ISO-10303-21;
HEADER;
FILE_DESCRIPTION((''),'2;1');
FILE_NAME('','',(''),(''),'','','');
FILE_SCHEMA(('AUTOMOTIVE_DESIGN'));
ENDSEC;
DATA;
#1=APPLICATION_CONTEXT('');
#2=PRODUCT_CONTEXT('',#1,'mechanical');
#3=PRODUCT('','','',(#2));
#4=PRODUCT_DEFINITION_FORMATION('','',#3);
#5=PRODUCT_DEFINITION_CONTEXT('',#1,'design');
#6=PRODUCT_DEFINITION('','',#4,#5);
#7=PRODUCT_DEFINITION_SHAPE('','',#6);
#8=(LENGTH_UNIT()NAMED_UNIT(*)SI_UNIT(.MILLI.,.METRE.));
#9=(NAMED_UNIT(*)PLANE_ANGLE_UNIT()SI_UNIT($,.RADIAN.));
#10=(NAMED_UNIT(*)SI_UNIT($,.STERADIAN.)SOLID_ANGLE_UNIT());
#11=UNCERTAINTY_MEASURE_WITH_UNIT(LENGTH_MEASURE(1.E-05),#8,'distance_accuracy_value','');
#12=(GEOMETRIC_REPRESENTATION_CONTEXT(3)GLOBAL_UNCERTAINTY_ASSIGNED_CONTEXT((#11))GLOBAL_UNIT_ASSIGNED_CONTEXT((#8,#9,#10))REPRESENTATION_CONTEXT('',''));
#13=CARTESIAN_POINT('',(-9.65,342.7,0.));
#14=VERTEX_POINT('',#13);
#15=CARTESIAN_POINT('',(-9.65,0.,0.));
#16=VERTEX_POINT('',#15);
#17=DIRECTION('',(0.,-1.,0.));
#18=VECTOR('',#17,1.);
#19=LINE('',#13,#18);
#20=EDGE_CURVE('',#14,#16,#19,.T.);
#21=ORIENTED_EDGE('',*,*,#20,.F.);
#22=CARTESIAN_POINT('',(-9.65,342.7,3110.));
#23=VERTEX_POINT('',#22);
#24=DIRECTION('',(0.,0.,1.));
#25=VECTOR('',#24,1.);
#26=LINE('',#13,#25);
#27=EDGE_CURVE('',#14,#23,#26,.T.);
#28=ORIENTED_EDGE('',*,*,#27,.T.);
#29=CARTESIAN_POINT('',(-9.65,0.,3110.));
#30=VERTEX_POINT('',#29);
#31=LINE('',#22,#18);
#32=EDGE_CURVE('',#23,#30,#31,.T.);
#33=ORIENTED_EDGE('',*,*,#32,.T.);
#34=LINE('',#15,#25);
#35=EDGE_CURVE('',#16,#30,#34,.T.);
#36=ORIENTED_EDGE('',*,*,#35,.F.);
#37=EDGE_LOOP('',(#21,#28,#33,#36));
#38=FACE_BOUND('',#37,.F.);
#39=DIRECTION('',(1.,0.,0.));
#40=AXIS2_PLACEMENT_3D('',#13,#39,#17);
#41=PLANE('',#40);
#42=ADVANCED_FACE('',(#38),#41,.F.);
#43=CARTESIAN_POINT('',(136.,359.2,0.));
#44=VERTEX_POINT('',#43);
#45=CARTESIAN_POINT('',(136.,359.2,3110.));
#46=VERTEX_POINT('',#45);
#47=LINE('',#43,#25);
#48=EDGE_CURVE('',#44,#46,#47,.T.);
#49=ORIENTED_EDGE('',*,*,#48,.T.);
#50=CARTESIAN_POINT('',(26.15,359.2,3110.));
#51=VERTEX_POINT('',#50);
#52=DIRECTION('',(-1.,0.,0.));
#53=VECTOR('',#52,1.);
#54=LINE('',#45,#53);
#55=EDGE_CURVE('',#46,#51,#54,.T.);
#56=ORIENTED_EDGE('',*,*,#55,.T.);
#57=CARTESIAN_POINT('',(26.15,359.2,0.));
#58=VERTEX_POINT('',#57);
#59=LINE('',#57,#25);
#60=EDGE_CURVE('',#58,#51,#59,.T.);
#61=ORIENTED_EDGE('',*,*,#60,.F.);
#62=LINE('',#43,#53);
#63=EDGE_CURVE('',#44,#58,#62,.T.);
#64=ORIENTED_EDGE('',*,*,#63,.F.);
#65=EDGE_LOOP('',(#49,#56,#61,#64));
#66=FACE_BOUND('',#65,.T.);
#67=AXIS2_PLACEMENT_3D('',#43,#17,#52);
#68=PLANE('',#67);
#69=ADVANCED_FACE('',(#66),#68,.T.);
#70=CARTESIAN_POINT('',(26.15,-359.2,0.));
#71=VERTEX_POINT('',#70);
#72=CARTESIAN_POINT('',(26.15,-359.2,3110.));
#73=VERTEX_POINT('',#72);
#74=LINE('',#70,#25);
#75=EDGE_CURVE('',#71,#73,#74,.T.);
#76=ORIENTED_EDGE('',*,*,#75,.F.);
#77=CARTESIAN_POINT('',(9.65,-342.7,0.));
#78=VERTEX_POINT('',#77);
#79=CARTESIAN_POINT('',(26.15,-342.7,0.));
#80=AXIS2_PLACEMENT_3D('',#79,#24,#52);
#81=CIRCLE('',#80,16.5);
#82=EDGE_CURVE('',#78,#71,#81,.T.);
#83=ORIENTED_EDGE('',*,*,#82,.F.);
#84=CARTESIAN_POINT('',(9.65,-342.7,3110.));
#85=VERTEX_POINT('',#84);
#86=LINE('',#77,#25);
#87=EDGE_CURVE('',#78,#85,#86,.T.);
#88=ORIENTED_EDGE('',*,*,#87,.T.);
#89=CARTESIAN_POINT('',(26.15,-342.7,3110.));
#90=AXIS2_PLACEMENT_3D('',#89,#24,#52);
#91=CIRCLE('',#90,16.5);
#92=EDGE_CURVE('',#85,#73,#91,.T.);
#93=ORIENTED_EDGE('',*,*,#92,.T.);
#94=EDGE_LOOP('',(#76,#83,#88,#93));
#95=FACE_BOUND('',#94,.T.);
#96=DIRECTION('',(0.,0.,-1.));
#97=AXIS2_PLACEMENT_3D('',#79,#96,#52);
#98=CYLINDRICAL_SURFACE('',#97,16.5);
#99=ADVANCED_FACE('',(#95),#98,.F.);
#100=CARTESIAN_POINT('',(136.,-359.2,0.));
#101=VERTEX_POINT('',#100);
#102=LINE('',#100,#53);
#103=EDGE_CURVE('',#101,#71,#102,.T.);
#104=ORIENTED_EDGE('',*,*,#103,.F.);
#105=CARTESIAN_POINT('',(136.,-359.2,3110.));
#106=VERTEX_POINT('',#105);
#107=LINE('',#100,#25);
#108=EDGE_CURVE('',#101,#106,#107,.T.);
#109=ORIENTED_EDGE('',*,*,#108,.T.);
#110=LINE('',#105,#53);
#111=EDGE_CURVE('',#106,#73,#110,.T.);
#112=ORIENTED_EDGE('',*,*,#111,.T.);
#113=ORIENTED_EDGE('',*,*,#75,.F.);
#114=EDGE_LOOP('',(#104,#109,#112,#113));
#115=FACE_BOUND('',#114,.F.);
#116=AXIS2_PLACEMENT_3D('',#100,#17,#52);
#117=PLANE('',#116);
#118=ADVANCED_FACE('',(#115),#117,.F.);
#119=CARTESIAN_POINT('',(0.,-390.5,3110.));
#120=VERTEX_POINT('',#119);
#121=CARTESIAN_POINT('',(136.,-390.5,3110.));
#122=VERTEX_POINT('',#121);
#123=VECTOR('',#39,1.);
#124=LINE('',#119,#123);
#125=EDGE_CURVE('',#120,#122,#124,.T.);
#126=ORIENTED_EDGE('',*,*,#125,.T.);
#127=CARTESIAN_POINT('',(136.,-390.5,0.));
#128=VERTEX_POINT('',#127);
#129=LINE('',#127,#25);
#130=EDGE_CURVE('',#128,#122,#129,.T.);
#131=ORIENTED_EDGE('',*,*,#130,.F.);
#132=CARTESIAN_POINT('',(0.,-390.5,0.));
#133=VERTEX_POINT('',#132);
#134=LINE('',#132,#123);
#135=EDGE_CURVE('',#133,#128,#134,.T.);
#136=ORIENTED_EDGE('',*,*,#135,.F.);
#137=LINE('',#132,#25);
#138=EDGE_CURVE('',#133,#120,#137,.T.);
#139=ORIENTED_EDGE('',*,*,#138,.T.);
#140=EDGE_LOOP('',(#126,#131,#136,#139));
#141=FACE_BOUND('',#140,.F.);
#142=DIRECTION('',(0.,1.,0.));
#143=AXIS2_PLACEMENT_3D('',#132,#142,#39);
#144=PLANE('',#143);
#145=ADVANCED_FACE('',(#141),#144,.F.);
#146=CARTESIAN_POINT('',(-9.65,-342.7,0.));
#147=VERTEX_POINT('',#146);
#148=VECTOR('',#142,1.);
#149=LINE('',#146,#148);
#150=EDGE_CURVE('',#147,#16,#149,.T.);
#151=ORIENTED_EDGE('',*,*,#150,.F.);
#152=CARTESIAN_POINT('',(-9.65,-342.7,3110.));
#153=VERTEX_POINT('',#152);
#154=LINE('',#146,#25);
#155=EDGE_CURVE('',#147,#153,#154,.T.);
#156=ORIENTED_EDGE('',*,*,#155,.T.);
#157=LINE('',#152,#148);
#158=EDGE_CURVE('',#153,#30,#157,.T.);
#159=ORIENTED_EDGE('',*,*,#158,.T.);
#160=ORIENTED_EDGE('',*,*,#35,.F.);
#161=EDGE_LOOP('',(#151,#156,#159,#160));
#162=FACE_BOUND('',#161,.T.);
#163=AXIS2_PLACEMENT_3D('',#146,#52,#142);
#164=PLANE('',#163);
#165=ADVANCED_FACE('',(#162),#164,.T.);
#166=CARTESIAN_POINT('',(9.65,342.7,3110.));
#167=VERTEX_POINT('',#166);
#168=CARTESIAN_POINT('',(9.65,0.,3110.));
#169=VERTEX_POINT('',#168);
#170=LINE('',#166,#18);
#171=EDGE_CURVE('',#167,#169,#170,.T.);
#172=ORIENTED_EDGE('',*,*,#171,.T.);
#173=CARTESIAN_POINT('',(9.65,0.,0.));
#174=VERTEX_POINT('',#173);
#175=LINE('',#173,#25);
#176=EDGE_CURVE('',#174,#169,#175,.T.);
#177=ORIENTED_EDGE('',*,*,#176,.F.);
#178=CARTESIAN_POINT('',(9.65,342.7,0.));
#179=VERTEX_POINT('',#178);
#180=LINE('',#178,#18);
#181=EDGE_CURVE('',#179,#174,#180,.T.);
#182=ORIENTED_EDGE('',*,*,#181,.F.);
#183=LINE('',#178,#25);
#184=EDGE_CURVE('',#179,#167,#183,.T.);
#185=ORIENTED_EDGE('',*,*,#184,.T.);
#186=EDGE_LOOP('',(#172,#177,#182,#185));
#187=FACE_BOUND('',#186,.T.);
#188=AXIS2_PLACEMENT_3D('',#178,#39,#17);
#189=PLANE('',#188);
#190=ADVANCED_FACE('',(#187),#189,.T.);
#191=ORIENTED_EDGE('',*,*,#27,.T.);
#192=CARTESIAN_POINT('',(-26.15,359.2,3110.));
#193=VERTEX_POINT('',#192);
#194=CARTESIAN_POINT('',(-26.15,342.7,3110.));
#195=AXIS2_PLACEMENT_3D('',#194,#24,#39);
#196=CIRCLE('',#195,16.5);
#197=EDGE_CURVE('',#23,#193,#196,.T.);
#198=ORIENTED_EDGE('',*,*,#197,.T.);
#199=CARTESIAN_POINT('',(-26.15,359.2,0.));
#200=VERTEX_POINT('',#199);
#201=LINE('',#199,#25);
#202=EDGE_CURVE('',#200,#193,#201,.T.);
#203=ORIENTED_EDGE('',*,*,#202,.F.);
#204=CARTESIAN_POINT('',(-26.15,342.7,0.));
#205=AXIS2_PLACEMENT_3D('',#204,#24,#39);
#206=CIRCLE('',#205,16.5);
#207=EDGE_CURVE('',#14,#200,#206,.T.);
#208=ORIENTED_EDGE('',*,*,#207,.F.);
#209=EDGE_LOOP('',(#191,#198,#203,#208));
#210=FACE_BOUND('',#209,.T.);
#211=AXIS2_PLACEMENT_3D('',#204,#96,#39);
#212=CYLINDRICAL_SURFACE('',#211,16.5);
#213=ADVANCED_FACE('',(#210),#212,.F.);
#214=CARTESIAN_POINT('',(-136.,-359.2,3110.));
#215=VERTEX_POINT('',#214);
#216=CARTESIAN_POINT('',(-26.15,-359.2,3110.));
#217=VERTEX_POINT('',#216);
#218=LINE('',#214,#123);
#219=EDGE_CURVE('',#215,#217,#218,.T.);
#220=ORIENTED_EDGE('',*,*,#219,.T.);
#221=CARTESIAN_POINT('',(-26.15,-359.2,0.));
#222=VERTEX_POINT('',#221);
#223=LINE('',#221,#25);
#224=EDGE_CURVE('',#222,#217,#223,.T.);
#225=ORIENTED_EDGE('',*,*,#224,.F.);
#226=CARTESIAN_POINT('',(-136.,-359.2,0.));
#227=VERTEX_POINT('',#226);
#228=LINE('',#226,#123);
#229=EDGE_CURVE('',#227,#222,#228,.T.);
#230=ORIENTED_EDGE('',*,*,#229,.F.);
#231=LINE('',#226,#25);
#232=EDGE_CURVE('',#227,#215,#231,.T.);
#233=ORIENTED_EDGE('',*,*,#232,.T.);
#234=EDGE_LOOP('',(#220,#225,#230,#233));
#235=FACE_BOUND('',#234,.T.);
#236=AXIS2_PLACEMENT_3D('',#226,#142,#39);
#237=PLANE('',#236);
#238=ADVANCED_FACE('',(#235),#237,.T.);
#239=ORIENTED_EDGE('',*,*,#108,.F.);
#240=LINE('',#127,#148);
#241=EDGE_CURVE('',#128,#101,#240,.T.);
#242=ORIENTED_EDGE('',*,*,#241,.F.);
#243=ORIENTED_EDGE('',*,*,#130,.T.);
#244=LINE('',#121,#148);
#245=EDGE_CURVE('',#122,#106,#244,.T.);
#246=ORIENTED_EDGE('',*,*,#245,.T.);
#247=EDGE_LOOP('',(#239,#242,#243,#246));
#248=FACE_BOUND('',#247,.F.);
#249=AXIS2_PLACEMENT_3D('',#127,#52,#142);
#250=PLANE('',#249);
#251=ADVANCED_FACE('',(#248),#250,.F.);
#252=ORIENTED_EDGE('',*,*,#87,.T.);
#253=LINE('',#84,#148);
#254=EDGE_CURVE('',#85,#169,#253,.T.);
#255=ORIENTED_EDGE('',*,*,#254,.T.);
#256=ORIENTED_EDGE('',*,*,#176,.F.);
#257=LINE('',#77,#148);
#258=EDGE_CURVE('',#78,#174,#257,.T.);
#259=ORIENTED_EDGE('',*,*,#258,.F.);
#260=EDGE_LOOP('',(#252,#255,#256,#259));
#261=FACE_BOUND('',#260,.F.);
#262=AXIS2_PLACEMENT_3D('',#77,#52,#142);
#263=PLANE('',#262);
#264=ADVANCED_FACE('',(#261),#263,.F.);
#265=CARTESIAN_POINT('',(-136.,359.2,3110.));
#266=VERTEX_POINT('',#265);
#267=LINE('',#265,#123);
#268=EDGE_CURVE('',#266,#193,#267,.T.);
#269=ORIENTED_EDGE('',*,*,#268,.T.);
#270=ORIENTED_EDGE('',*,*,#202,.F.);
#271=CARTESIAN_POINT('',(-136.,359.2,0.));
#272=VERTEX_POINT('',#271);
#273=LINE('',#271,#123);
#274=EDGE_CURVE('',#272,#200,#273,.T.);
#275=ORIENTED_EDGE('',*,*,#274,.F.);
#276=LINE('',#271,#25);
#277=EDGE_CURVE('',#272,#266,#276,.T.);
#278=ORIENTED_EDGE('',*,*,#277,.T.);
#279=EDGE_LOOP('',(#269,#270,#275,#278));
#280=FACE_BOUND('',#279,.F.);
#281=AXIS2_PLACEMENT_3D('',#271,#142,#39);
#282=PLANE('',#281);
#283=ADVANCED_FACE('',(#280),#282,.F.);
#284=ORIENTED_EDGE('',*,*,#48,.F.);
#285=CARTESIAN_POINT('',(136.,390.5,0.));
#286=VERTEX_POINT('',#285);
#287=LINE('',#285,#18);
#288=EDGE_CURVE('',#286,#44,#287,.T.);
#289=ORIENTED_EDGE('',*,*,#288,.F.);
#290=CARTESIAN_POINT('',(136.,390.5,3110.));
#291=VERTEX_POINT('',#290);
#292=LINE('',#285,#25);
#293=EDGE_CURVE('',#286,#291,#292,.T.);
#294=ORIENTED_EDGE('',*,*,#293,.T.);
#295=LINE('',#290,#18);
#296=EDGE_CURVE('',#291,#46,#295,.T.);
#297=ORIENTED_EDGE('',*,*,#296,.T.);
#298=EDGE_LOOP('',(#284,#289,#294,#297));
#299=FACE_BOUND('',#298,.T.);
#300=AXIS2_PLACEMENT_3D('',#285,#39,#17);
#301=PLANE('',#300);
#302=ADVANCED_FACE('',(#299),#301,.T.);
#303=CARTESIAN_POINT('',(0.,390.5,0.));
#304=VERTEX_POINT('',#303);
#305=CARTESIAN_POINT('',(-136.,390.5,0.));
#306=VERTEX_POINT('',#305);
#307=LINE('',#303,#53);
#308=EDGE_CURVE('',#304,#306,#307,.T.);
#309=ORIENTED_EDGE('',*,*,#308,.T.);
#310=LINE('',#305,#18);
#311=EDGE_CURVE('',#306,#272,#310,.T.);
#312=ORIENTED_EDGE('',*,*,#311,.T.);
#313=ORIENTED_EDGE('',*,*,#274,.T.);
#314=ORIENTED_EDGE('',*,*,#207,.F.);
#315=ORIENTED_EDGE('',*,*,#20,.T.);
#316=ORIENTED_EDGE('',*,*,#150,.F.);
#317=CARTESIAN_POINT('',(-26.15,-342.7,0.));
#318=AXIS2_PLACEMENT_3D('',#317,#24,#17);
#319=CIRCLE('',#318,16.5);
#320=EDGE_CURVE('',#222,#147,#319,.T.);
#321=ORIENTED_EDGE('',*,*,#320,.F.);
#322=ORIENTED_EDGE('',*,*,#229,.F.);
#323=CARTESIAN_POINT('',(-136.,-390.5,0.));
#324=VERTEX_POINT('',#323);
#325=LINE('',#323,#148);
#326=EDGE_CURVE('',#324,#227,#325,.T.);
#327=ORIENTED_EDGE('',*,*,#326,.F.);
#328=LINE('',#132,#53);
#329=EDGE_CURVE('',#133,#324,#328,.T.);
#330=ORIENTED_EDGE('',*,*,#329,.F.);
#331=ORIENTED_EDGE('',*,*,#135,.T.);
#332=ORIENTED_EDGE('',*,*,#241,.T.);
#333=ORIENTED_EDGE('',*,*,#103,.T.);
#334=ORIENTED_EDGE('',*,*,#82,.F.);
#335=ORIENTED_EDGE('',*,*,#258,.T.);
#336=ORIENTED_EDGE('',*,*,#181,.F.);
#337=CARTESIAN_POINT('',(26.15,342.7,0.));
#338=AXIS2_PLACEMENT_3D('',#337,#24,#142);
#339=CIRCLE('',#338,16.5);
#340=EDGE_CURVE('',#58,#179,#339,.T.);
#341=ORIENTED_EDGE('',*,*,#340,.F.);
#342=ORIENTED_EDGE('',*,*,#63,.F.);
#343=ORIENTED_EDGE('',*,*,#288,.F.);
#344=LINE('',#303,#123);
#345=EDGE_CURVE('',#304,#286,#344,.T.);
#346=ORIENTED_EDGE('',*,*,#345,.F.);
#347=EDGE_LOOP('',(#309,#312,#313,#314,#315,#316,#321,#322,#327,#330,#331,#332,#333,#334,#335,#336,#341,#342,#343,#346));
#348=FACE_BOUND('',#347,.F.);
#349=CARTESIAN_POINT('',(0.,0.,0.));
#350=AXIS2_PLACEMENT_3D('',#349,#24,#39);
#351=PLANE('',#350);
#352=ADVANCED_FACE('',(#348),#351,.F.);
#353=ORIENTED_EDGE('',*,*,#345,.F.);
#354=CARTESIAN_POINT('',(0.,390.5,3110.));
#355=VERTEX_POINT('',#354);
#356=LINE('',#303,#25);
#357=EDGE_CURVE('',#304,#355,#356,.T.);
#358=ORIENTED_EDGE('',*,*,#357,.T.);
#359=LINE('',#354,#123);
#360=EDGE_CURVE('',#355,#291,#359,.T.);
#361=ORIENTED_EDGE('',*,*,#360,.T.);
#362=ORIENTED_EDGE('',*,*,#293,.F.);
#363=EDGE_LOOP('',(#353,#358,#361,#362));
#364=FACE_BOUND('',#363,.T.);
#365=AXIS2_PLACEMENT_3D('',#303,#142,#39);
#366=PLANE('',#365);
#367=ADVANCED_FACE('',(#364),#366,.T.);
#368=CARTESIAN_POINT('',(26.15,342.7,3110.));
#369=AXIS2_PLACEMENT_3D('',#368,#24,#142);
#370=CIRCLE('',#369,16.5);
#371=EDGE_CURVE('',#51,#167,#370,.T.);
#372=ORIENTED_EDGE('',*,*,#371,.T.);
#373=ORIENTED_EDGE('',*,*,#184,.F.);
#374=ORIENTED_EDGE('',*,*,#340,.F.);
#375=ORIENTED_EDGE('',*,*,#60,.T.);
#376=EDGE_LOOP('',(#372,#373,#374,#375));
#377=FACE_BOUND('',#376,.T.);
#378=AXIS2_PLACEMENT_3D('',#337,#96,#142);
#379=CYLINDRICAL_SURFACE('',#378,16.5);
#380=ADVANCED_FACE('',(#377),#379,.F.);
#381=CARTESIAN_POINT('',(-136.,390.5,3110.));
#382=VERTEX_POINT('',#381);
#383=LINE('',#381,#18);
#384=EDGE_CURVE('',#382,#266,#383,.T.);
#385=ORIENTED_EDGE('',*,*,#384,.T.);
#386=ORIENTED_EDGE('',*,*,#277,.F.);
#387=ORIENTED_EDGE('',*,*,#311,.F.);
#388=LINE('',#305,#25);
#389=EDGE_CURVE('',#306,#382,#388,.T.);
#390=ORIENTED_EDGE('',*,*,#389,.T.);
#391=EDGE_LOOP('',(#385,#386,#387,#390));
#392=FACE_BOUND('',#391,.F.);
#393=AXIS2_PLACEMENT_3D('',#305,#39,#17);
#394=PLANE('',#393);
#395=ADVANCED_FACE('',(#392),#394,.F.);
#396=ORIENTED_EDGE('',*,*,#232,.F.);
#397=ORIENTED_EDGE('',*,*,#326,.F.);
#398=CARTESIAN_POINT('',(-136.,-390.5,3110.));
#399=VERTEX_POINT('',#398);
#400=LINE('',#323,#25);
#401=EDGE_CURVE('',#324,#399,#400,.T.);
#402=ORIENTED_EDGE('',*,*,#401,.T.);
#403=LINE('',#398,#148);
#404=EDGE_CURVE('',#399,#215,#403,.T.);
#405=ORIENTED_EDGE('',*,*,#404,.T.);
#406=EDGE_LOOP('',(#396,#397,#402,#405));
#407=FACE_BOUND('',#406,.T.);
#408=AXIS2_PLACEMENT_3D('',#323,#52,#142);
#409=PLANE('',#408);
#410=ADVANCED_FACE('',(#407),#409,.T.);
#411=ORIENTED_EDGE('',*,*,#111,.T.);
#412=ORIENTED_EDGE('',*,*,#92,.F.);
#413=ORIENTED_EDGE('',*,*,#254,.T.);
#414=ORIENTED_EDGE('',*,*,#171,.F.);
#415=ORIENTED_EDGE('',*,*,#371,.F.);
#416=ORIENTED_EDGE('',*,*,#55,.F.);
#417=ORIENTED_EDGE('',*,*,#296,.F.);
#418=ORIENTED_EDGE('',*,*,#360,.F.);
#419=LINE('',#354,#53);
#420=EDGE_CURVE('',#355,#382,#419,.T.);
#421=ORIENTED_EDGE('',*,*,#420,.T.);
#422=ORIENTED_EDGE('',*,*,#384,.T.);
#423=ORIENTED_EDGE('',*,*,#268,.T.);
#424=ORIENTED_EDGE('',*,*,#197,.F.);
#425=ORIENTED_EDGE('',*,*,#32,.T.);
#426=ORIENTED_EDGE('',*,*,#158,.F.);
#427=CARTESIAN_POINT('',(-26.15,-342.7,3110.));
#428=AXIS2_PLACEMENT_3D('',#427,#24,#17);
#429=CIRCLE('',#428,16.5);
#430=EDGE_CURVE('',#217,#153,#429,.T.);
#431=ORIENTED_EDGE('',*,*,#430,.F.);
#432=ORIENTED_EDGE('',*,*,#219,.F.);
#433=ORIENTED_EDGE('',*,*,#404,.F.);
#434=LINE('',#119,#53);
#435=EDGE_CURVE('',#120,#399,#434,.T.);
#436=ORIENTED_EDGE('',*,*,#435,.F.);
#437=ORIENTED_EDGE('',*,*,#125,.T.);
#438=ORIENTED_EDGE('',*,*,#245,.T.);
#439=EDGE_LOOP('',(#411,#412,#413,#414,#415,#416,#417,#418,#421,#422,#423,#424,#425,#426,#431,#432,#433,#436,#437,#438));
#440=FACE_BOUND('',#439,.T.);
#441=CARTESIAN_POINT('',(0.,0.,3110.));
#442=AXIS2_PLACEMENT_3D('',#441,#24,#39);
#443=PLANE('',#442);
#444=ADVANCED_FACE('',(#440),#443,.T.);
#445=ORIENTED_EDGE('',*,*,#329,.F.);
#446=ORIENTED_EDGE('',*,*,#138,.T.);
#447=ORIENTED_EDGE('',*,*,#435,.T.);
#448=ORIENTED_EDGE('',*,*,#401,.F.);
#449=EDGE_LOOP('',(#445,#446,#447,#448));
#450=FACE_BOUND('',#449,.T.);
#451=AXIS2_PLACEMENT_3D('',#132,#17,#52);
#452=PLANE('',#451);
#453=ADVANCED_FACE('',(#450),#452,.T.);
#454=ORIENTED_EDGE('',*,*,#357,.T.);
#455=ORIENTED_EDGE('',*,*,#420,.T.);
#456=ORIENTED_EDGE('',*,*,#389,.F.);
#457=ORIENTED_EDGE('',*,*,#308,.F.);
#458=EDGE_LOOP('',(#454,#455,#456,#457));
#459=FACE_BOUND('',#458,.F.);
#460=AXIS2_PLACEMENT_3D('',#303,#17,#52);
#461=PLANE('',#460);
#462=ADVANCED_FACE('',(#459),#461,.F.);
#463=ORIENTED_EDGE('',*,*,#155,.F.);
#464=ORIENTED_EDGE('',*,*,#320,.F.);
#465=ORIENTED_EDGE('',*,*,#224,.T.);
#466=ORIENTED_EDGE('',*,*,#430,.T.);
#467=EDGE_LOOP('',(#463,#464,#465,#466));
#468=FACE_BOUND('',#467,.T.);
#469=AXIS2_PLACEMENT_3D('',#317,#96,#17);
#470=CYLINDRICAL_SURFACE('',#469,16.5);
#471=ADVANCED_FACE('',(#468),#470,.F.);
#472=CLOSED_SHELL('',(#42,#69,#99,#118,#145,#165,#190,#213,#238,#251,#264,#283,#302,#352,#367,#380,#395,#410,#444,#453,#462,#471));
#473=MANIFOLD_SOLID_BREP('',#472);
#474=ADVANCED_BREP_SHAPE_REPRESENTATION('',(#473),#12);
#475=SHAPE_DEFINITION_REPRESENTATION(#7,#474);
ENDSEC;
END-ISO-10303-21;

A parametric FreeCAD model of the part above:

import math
import FreeCAD as App
import Part
import Sketcher

V = App.Vector
Q = App.Units.Quantity

doc = App.newDocument("Part")
body = doc.addObject("PartDesign::Body", "Body")

# Sketch on XY plane
sketch1 = doc.addObject("Sketcher::SketchObject", "Sketch")
body.addObject(sketch1)
sketch1.AttachmentSupport = (doc.XY_Plane, [""])
sketch1.MapMode = "FlatFace"
sketch1.addGeometry(Part.LineSegment(V(-136, -359.2, 0), V(-136, -390.5, 0)), False)
sketch1.addGeometry(Part.LineSegment(V(-136, -390.5, 0), V(136, -390.5, 0)), False)
sketch1.addGeometry(Part.LineSegment(V(136, -390.5, 0), V(136, -359.2, 0)), False)
sketch1.addGeometry(Part.LineSegment(V(136, -359.2, 0), V(26.15, -359.2, 0)), False)
sketch1.addGeometry(Part.ArcOfCircle(Part.Circle(V(26.15, -342.7, 0), V(0, 0, 1), 16.5), math.radians(180), math.radians(270)), False)
sketch1.addGeometry(Part.LineSegment(V(9.65, -342.7, 0), V(9.65, 342.7, 0)), False)
sketch1.addGeometry(Part.ArcOfCircle(Part.Circle(V(26.15, 342.7, 0), V(0, 0, 1), 16.5), math.radians(90), math.radians(180)), False)
sketch1.addGeometry(Part.LineSegment(V(26.15, 359.2, 0), V(136, 359.2, 0)), False)
sketch1.addGeometry(Part.LineSegment(V(136, 359.2, 0), V(136, 390.5, 0)), False)
sketch1.addGeometry(Part.LineSegment(V(136, 390.5, 0), V(-136, 390.5, 0)), False)
sketch1.addGeometry(Part.LineSegment(V(-136, 390.5, 0), V(-136, 359.2, 0)), False)
sketch1.addGeometry(Part.LineSegment(V(-136, 359.2, 0), V(-26.15, 359.2, 0)), False)
sketch1.addGeometry(Part.ArcOfCircle(Part.Circle(V(-26.15, 342.7, 0), V(0, 0, 1), 16.5), math.radians(0), math.radians(90)), False)
sketch1.addGeometry(Part.LineSegment(V(-9.65, 342.7, 0), V(-9.65, -342.7, 0)), False)
sketch1.addGeometry(Part.ArcOfCircle(Part.Circle(V(-26.15, -342.7, 0), V(0, 0, 1), 16.5), math.radians(-90), math.radians(0)), False)
sketch1.addGeometry(Part.LineSegment(V(-26.15, -359.2, 0), V(-136, -359.2, 0)), False)
sketch1.addConstraint(Sketcher.Constraint("Coincident", 0, 2, 1, 1))
sketch1.addConstraint(Sketcher.Constraint("Coincident", 1, 2, 2, 1))
sketch1.addConstraint(Sketcher.Constraint("Coincident", 2, 2, 3, 1))
sketch1.addConstraint(Sketcher.Constraint("Tangent", 3, 2, 4, 2))
sketch1.addConstraint(Sketcher.Constraint("Tangent", 4, 1, 5, 1))
sketch1.addConstraint(Sketcher.Constraint("Tangent", 5, 2, 6, 2))
sketch1.addConstraint(Sketcher.Constraint("Tangent", 6, 1, 7, 1))
sketch1.addConstraint(Sketcher.Constraint("Coincident", 7, 2, 8, 1))
sketch1.addConstraint(Sketcher.Constraint("Coincident", 8, 2, 9, 1))
sketch1.addConstraint(Sketcher.Constraint("Coincident", 9, 2, 10, 1))
sketch1.addConstraint(Sketcher.Constraint("Coincident", 10, 2, 11, 1))
sketch1.addConstraint(Sketcher.Constraint("Tangent", 11, 2, 12, 2))
sketch1.addConstraint(Sketcher.Constraint("Tangent", 12, 1, 13, 1))
sketch1.addConstraint(Sketcher.Constraint("Tangent", 13, 2, 14, 2))
sketch1.addConstraint(Sketcher.Constraint("Tangent", 14, 1, 15, 1))
sketch1.addConstraint(Sketcher.Constraint("Coincident", 15, 2, 0, 1))
sketch1.addConstraint(Sketcher.Constraint("Vertical", 0))
sketch1.addConstraint(Sketcher.Constraint("Horizontal", 1))
sketch1.addConstraint(Sketcher.Constraint("Vertical", 2))
sketch1.addConstraint(Sketcher.Constraint("Horizontal", 3))
sketch1.addConstraint(Sketcher.Constraint("Vertical", 5))
sketch1.addConstraint(Sketcher.Constraint("Horizontal", 7))
sketch1.addConstraint(Sketcher.Constraint("Vertical", 8))
sketch1.addConstraint(Sketcher.Constraint("Horizontal", 9))
sketch1.addConstraint(Sketcher.Constraint("Vertical", 10))
sketch1.addConstraint(Sketcher.Constraint("Horizontal", 11))
sketch1.addConstraint(Sketcher.Constraint("Vertical", 13))
sketch1.addConstraint(Sketcher.Constraint("Horizontal", 15))
sketch1.addConstraint(Sketcher.Constraint("Equal", 4, 6))
sketch1.addConstraint(Sketcher.Constraint("Equal", 6, 12))
sketch1.addConstraint(Sketcher.Constraint("Equal", 12, 14))
sketch1.addConstraint(Sketcher.Constraint("Symmetric", 4, 3, 12, 3, -1, 1))
sketch1.addConstraint(Sketcher.Constraint("Symmetric", 0, 2, 8, 2, -1, 1))
sketch1.addConstraint(Sketcher.Constraint("Symmetric", 7, 2, 10, 2, -2))
sketch1.addConstraint(Sketcher.Constraint("Symmetric", 2, 2, 15, 2, -2))
sketch1.addConstraint(Sketcher.Constraint("Radius", 4, Q("16.5 mm")))
sketch1.addConstraint(Sketcher.Constraint("DistanceY", 0, 2, 0, 1, Q("31.3 mm")))
sketch1.addConstraint(Sketcher.Constraint("DistanceX", 0, 2, -1, 1, Q("136 mm")))
sketch1.addConstraint(Sketcher.Constraint("DistanceY", 0, 2, -1, 1, Q("390.5 mm")))
sketch1.addConstraint(Sketcher.Constraint("DistanceX", -1, 1, 4, 1, Q("9.65 mm")))
pad1 = doc.addObject("PartDesign::Pad", "Pad")
body.addObject(pad1)
pad1.Profile = sketch1
pad1.Length = 3110

doc.recompute()
